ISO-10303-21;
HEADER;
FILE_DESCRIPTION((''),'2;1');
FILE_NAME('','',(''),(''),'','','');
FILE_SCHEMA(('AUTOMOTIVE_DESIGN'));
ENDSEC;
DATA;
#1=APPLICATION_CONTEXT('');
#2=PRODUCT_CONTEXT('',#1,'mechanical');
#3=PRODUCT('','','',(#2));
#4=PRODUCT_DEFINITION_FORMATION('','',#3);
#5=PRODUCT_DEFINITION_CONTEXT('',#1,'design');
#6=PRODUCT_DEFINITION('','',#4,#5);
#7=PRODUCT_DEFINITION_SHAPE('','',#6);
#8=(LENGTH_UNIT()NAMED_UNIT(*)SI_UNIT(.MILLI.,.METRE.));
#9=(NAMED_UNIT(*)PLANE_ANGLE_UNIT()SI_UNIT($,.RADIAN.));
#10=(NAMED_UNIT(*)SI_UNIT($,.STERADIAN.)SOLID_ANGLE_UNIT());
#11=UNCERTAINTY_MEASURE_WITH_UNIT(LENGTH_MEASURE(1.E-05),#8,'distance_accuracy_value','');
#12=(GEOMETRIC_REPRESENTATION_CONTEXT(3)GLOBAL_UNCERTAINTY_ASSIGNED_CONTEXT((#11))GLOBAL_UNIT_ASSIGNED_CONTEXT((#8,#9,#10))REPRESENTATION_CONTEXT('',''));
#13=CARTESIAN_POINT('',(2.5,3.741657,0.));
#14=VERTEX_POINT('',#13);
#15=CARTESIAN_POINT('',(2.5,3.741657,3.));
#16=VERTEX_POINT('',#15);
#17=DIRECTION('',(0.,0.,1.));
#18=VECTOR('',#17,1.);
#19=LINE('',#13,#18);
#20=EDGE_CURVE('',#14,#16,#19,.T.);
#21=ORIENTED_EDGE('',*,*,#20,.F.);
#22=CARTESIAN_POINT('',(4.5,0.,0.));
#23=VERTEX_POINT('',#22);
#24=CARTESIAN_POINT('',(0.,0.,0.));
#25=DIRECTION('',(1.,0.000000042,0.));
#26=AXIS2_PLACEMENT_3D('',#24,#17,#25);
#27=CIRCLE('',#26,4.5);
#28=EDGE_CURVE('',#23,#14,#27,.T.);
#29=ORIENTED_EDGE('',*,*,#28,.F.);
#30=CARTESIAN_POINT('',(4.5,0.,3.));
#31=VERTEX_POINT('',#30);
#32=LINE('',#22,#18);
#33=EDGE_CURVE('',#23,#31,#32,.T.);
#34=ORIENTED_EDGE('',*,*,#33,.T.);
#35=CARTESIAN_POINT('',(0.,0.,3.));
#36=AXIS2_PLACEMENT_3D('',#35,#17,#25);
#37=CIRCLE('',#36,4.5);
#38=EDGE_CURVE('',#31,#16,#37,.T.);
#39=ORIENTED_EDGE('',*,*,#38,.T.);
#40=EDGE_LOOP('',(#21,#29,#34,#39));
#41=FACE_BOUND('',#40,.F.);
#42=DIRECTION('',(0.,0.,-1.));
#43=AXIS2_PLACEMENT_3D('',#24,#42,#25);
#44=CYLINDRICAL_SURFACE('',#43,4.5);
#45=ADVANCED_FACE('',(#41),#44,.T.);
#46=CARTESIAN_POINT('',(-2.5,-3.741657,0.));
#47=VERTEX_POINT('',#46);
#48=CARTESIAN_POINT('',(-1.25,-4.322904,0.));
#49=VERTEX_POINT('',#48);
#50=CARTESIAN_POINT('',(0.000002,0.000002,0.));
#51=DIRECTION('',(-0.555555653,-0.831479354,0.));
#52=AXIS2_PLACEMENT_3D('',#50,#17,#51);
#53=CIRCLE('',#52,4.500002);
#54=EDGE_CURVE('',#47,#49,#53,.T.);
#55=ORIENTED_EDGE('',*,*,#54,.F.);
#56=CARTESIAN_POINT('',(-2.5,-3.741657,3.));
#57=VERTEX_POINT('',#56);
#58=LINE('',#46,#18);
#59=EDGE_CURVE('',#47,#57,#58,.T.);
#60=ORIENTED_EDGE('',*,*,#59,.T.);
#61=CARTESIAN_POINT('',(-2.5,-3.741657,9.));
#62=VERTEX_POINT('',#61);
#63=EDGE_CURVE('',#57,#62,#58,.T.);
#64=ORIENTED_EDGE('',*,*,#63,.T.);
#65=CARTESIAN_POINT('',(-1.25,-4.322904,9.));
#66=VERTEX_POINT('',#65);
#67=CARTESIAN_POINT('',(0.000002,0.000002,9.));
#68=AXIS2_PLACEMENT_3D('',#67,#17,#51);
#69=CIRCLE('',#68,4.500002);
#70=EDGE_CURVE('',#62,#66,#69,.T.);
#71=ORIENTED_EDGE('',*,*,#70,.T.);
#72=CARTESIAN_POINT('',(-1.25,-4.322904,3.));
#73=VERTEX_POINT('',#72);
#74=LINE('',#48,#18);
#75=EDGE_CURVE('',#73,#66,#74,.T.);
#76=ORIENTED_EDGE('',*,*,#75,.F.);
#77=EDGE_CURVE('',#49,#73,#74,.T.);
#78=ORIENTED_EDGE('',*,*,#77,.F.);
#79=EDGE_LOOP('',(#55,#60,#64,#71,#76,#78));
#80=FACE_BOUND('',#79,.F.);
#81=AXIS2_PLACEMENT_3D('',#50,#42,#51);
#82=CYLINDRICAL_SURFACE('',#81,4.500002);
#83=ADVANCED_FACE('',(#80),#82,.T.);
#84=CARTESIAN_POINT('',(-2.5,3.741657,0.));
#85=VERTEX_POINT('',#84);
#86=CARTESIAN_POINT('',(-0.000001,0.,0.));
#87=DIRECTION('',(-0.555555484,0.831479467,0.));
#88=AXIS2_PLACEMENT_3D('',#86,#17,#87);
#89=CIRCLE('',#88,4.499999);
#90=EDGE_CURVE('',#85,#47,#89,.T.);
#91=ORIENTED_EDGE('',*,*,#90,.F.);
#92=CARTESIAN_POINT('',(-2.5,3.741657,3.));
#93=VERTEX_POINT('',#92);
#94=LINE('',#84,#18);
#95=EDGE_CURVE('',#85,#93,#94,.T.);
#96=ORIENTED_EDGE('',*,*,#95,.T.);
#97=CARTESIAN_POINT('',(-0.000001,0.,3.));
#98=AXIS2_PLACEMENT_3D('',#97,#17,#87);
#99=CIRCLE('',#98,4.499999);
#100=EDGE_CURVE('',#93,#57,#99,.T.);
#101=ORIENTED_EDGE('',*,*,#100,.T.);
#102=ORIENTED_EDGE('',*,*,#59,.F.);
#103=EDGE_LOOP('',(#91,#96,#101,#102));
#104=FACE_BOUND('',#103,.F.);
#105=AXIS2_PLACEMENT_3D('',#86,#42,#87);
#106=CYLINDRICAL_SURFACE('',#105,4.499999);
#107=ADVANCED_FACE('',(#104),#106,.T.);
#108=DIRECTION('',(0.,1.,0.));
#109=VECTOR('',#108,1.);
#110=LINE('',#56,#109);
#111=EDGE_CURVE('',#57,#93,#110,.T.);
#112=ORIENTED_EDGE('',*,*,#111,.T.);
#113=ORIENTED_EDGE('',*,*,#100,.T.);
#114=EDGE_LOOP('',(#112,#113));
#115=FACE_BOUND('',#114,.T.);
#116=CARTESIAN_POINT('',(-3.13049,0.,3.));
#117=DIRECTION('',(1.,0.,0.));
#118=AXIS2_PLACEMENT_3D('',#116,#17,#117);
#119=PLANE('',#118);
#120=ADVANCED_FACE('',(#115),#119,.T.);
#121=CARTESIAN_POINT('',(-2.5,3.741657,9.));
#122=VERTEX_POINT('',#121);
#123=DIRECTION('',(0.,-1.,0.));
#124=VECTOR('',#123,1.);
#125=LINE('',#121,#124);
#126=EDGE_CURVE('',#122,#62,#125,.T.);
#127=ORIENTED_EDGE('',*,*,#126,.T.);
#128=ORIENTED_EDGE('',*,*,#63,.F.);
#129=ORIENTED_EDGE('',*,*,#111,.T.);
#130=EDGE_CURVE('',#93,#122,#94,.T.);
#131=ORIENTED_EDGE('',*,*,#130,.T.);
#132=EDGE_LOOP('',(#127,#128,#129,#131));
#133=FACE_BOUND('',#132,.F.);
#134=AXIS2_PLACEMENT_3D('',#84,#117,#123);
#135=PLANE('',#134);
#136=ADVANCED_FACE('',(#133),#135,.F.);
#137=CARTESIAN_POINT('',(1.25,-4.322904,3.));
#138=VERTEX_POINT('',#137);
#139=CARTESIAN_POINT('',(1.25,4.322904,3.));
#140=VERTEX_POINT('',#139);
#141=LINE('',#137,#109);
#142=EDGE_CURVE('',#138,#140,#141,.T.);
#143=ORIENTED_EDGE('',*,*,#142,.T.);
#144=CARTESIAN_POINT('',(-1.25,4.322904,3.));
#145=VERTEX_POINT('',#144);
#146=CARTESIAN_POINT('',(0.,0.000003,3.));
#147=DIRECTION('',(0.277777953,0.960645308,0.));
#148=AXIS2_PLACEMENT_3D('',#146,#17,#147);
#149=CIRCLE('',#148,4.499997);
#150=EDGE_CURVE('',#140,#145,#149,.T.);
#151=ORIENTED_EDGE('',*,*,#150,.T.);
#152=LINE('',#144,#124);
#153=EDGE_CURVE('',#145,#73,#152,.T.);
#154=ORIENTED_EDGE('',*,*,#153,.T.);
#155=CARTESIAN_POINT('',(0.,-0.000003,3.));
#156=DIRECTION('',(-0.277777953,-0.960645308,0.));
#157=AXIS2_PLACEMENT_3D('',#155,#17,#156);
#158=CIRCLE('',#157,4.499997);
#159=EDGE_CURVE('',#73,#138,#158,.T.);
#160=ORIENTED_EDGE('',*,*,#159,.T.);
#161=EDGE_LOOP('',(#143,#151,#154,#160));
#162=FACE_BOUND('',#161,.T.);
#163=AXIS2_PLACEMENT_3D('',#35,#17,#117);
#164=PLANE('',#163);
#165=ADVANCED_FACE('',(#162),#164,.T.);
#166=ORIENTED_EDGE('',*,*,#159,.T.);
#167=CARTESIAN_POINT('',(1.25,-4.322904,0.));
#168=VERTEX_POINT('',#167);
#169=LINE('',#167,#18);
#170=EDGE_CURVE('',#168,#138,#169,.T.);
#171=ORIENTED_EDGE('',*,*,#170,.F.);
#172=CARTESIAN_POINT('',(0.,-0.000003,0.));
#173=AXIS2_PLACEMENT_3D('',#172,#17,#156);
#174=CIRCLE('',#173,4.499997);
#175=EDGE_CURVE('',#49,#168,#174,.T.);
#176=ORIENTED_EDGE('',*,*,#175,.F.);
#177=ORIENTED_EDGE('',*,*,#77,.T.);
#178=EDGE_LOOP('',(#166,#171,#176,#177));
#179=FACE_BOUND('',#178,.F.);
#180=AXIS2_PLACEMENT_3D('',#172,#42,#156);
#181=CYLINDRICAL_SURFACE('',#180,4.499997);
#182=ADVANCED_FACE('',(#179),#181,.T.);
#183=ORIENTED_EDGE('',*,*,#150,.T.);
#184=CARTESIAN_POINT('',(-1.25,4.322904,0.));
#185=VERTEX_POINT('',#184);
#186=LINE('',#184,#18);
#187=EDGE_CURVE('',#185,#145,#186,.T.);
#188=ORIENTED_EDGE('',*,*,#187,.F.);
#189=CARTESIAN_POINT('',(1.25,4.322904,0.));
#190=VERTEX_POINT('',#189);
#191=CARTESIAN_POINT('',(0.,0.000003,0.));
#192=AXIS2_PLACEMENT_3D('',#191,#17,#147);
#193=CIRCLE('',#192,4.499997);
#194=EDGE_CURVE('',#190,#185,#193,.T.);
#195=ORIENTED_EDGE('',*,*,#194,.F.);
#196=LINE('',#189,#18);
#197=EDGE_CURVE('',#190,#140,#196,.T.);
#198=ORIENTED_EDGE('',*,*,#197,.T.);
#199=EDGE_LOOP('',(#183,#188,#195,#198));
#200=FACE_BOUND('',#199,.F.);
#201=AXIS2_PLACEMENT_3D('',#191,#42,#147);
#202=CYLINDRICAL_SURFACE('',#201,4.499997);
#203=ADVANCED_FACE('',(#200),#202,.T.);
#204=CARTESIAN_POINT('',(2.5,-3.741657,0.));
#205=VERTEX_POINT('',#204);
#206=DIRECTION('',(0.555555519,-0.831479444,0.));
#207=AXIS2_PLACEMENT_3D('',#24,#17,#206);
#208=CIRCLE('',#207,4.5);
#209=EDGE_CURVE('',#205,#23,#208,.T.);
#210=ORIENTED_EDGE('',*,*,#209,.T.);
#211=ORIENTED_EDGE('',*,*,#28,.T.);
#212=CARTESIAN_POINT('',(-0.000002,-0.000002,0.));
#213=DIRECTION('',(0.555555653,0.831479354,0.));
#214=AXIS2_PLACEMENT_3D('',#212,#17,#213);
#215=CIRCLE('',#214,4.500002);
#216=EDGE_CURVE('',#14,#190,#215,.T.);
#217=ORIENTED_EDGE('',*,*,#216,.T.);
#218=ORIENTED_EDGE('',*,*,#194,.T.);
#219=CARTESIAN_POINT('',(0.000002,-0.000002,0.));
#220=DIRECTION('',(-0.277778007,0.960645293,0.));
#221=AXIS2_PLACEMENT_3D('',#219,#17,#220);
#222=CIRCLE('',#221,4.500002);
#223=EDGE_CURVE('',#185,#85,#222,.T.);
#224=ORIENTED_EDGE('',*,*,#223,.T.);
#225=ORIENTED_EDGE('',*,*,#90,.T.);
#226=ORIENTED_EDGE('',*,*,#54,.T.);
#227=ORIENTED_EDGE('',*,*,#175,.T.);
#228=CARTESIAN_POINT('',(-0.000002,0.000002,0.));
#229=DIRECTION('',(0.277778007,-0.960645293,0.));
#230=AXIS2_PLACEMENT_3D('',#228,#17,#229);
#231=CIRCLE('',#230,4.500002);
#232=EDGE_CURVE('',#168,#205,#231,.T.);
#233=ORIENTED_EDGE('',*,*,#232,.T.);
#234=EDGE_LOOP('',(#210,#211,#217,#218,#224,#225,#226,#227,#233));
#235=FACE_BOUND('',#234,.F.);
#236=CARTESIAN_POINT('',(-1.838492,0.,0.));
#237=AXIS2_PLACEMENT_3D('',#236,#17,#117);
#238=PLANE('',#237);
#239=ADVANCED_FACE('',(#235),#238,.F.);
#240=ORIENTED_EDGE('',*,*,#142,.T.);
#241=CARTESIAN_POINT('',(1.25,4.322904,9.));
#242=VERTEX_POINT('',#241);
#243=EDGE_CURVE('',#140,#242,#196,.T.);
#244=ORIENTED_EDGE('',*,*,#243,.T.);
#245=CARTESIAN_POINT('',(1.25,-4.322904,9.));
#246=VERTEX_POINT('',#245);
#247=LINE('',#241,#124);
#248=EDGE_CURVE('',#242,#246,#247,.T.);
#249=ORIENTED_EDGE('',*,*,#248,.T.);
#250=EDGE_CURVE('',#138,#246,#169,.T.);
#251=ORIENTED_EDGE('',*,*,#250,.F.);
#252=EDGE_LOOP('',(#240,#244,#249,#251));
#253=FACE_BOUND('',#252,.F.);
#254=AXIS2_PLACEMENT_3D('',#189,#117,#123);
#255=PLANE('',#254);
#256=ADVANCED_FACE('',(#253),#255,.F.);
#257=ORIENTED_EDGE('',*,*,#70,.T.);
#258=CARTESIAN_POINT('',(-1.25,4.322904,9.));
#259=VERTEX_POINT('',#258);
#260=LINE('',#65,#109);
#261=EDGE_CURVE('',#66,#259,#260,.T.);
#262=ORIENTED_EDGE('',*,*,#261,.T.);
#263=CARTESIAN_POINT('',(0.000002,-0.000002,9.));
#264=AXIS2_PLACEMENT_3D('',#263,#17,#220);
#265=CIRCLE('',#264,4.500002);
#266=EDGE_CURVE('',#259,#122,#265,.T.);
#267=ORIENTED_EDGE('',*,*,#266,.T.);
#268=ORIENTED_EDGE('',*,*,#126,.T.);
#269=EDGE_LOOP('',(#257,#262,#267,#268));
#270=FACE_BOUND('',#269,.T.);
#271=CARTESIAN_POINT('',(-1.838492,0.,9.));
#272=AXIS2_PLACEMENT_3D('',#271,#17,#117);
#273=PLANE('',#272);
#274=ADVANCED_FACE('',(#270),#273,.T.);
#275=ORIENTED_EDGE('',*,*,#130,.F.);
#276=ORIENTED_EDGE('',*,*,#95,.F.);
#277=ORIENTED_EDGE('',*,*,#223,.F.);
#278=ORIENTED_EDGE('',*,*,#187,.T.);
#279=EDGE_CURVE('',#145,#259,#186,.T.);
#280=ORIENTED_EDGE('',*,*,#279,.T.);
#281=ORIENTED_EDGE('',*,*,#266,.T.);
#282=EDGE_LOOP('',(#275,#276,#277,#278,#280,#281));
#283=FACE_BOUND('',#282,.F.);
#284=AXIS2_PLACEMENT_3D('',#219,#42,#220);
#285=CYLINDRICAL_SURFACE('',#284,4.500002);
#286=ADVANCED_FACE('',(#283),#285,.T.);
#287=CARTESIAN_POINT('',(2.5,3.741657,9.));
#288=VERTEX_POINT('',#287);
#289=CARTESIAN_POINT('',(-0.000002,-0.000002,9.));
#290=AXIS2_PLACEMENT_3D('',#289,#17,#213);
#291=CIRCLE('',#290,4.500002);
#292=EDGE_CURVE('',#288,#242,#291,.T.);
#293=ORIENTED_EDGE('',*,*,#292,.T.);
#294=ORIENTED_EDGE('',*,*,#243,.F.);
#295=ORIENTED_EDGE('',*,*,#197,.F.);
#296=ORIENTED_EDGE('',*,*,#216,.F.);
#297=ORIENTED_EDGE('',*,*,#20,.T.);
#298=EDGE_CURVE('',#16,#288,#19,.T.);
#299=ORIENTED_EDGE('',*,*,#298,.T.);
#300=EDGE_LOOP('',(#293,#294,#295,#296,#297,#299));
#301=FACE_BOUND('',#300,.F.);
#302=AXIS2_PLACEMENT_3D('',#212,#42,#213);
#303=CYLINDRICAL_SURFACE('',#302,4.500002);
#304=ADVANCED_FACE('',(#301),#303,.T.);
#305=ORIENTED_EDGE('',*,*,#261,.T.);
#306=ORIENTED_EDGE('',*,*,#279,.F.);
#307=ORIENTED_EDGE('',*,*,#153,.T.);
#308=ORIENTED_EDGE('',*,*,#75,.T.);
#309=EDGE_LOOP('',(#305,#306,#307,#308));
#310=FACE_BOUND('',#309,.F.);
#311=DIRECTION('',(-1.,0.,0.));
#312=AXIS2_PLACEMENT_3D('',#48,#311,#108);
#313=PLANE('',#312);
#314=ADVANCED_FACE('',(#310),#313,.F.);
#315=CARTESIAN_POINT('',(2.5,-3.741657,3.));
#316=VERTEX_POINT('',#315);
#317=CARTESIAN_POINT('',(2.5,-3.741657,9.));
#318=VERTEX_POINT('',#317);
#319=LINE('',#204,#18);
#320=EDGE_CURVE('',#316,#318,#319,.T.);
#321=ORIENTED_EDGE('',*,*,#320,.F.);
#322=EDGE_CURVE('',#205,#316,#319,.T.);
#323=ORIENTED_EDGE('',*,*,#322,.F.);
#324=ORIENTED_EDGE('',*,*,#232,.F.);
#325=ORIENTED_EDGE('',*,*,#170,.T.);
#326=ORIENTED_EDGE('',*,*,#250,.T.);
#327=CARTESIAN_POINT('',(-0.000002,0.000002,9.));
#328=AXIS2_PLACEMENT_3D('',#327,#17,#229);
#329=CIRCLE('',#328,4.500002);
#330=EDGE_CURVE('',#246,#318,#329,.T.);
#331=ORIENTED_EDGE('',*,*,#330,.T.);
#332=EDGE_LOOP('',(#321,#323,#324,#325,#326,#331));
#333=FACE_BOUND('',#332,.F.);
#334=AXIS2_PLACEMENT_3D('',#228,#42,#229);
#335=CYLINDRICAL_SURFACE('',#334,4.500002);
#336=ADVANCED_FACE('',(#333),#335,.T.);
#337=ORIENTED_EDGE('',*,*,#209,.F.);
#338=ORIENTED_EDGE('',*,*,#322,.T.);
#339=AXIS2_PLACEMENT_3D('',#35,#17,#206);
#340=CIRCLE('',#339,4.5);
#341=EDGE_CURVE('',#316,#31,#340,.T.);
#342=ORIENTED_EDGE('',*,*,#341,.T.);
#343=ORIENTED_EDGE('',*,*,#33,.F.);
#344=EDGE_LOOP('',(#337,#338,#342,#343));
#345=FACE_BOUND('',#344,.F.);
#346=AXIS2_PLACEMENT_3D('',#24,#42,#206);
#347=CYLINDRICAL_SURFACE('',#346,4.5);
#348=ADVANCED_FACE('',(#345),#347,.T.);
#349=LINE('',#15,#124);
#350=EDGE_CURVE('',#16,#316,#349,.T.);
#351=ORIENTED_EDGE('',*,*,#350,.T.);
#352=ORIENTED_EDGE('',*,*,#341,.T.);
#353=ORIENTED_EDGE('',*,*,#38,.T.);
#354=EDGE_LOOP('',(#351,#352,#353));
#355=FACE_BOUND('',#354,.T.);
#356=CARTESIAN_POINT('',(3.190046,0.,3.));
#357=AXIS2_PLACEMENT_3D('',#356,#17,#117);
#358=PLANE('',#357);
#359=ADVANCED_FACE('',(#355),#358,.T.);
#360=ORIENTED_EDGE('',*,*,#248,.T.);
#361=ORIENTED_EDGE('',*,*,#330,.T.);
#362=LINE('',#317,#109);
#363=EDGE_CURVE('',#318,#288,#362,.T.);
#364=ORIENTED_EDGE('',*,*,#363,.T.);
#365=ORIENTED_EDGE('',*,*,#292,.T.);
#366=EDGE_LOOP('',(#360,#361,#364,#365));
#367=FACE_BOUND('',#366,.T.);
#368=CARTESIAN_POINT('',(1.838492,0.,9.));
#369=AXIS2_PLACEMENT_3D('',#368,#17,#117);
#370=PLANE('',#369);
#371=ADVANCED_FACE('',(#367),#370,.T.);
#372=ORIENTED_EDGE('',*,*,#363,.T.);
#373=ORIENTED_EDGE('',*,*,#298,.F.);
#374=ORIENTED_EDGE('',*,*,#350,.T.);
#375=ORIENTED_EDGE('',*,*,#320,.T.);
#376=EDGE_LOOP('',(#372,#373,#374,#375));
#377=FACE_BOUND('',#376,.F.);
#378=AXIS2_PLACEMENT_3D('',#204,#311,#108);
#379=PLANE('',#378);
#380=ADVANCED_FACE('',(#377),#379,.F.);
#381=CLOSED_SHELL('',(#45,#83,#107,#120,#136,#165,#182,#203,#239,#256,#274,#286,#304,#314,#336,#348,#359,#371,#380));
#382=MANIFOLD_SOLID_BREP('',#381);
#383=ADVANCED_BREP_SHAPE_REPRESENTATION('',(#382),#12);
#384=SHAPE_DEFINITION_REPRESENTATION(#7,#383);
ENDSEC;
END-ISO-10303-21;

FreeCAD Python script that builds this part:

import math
import FreeCAD as App
import Part
import Sketcher
from FreeCAD import Vector
Q = App.Units.Quantity

doc = App.newDocument("Part")
body = doc.addObject("PartDesign::Body", "Body")
body.AllowCompound = True

# Sketch on XY plane
sketch1 = body.newObject("Sketcher::SketchObject", "Sketch")
sketch1.AttachmentSupport = (doc.getObject("XY_Plane"), [""])
sketch1.MapMode = "FlatFace"
sketch1.addGeometry(Part.LineSegment(Vector(-2.5, -3.7, 0), Vector(-2.5, 3.7, 0)), False)
sketch1.addGeometry(Part.ArcOfCircle(Part.Circle(Vector(0, 0, 0), Vector(0, 0, 1), 4.5), math.radians(124), math.radians(236)), False)
sketch1.addGeometry(Part.LineSegment(Vector(1.2, -4.3, 0), Vector(1.2, 4.3, 0)), False)
sketch1.addGeometry(Part.ArcOfCircle(Part.Circle(Vector(0, 0, 0), Vector(0, 0, 1), 4.5), math.radians(74), math.radians(106)), False)
sketch1.addGeometry(Part.LineSegment(Vector(-1.2, 4.3, 0), Vector(-1.2, -4.3, 0)), False)
sketch1.addGeometry(Part.ArcOfCircle(Part.Circle(Vector(0, 0, 0), Vector(0, 0, 1), 4.5), math.radians(-106), math.radians(-74)), False)
sketch1.addGeometry(Part.ArcOfCircle(Part.Circle(Vector(0, 0, 0), Vector(0, 0, 1), 4.5), math.radians(-56), math.radians(0)), False)
sketch1.addGeometry(Part.ArcOfCircle(Part.Circle(Vector(0, 0, 0), Vector(0, 0, 1), 4.5), math.radians(0), math.radians(56)), False)
sketch1.addGeometry(Part.LineSegment(Vector(2.5, 3.7, 0), Vector(2.5, -3.7, 0)), False)
sketch1.addConstraint(Sketcher.Constraint("Coincident", 0, 1, 1, 2))
sketch1.addConstraint(Sketcher.Constraint("Coincident", 1, 1, 0, 2))
sketch1.addConstraint(Sketcher.Constraint("Coincident", 2, 2, 3, 1))
sketch1.addConstraint(Sketcher.Constraint("Coincident", 3, 2, 4, 1))
sketch1.addConstraint(Sketcher.Constraint("Coincident", 4, 2, 5, 1))
sketch1.addConstraint(Sketcher.Constraint("Coincident", 5, 2, 2, 1))
sketch1.addConstraint(Sketcher.Constraint("Tangent", 6, 2, 7, 1))
sketch1.addConstraint(Sketcher.Constraint("Coincident", 7, 2, 8, 1))
sketch1.addConstraint(Sketcher.Constraint("Coincident", 8, 2, 6, 1))
sketch1.addConstraint(Sketcher.Constraint("Vertical", 0))
sketch1.addConstraint(Sketcher.Constraint("Vertical", 2))
sketch1.addConstraint(Sketcher.Constraint("Vertical", 4))
sketch1.addConstraint(Sketcher.Constraint("Vertical", 8))
sketch1.addConstraint(Sketcher.Constraint("Coincident", 1, 3, -1, 1))
sketch1.addConstraint(Sketcher.Constraint("Coincident", 3, 3, -1, 1))
sketch1.addConstraint(Sketcher.Constraint("Coincident", 5, 3, -1, 1))
sketch1.addConstraint(Sketcher.Constraint("Coincident", 6, 3, -1, 1))
sketch1.addConstraint(Sketcher.Constraint("Equal", 3, 5))
sketch1.addConstraint(Sketcher.Constraint("Equal", 1, 6))
sketch1.addConstraint(Sketcher.Constraint("Equal", 6, 7))
sketch1.addConstraint(Sketcher.Constraint("PointOnObject", 6, 2, -1))
sketch1.addConstraint(Sketcher.Constraint("Horizontal", 2, 2, 3, 2))
sketch1.addConstraint(Sketcher.Constraint("Horizontal", 1, 1, 7, 2))
sketch1.addConstraint(Sketcher.Constraint("Radius", 1, Q("4.499999 mm")))
sketch1.addConstraint(Sketcher.Constraint("DistanceX", 7, 2, 6, 2, Q("2 mm")))
sketch1.addConstraint(Sketcher.Constraint("DistanceX", 3, 2, 2, 2, Q("2.5 mm")))
sketch1.addConstraint(Sketcher.Constraint("Radius", 3, Q("4.499997 mm")))
pad1 = body.newObject("PartDesign::Pad", "Pad")
pad1.Profile = sketch1
pad1.Length = 3

# Sketch on XY plane
sketch2 = body.newObject("Sketcher::SketchObject", "Sketch001")
sketch2.AttachmentSupport = (doc.getObject("XY_Plane"), [""])
sketch2.MapMode = "FlatFace"
sketch2.addGeometry(Part.LineSegment(Vector(-1.2, -4.3, 0), Vector(-1.2, 4.3, 0)), False)
sketch2.addGeometry(Part.ArcOfCircle(Part.Circle(Vector(0, 0, 0), Vector(0, 0, 1), 4.5), math.radians(106.13), math.radians(123.75)), False)
sketch2.addGeometry(Part.LineSegment(Vector(-2.5, 3.7, 0), Vector(-2.5, -3.7, 0)), False)
sketch2.addGeometry(Part.ArcOfCircle(Part.Circle(Vector(0, 0, 0), Vector(0, 0, 1), 4.5), math.radians(-123.75), math.radians(-106.13)), False)
sketch2.addGeometry(Part.LineSegment(Vector(2.5, -3.7, 0), Vector(2.5, 3.7, 0)), False)
sketch2.addGeometry(Part.ArcOfCircle(Part.Circle(Vector(0, 0, 0), Vector(0, 0, 1), 4.5), math.radians(56.25), math.radians(73.87)), False)
sketch2.addGeometry(Part.LineSegment(Vector(1.2, 4.3, 0), Vector(1.2, -4.3, 0)), False)
sketch2.addGeometry(Part.ArcOfCircle(Part.Circle(Vector(0, 0, 0), Vector(0, 0, 1), 4.5), math.radians(-73.87), math.radians(-56.25)), False)
sketch2.addConstraint(Sketcher.Constraint("Coincident", 0, 2, 1, 1))
sketch2.addConstraint(Sketcher.Constraint("Coincident", 1, 2, 2, 1))
sketch2.addConstraint(Sketcher.Constraint("Coincident", 2, 2, 3, 1))
sketch2.addConstraint(Sketcher.Constraint("Coincident", 3, 2, 0, 1))
sketch2.addConstraint(Sketcher.Constraint("Coincident", 4, 2, 5, 1))
sketch2.addConstraint(Sketcher.Constraint("Coincident", 5, 2, 6, 1))
sketch2.addConstraint(Sketcher.Constraint("Coincident", 6, 2, 7, 1))
sketch2.addConstraint(Sketcher.Constraint("Coincident", 7, 2, 4, 1))
sketch2.addConstraint(Sketcher.Constraint("Vertical", 0))
sketch2.addConstraint(Sketcher.Constraint("Vertical", 2))
sketch2.addConstraint(Sketcher.Constraint("Vertical", 4))
sketch2.addConstraint(Sketcher.Constraint("Vertical", 6))
sketch2.addConstraint(Sketcher.Constraint("Coincident", 1, 3, -1, 1))
sketch2.addConstraint(Sketcher.Constraint("Coincident", 3, 3, -1, 1))
sketch2.addConstraint(Sketcher.Constraint("Coincident", 5, 3, -1, 1))
sketch2.addConstraint(Sketcher.Constraint("Coincident", 7, 3, -1, 1))
sketch2.addConstraint(Sketcher.Constraint("Equal", 1, 3))
sketch2.addConstraint(Sketcher.Constraint("Equal", 3, 5))
sketch2.addConstraint(Sketcher.Constraint("Equal", 5, 7))
sketch2.addConstraint(Sketcher.Constraint("Horizontal", 1, 2, 4, 2))
sketch2.addConstraint(Sketcher.Constraint("Horizontal", 0, 2, 5, 2))
sketch2.addConstraint(Sketcher.Constraint("DistanceX", 1, 2, -1, 1, Q("2.5 mm")))
sketch2.addConstraint(Sketcher.Constraint("DistanceX", 0, 2, 5, 2, Q("2.5 mm")))
sketch2.addConstraint(Sketcher.Constraint("Radius", 1, Q("4.500002 mm")))
pad2 = body.newObject("PartDesign::Pad", "Pad001")
pad2.Profile = sketch2
pad2.Length = 9

doc.recompute()
